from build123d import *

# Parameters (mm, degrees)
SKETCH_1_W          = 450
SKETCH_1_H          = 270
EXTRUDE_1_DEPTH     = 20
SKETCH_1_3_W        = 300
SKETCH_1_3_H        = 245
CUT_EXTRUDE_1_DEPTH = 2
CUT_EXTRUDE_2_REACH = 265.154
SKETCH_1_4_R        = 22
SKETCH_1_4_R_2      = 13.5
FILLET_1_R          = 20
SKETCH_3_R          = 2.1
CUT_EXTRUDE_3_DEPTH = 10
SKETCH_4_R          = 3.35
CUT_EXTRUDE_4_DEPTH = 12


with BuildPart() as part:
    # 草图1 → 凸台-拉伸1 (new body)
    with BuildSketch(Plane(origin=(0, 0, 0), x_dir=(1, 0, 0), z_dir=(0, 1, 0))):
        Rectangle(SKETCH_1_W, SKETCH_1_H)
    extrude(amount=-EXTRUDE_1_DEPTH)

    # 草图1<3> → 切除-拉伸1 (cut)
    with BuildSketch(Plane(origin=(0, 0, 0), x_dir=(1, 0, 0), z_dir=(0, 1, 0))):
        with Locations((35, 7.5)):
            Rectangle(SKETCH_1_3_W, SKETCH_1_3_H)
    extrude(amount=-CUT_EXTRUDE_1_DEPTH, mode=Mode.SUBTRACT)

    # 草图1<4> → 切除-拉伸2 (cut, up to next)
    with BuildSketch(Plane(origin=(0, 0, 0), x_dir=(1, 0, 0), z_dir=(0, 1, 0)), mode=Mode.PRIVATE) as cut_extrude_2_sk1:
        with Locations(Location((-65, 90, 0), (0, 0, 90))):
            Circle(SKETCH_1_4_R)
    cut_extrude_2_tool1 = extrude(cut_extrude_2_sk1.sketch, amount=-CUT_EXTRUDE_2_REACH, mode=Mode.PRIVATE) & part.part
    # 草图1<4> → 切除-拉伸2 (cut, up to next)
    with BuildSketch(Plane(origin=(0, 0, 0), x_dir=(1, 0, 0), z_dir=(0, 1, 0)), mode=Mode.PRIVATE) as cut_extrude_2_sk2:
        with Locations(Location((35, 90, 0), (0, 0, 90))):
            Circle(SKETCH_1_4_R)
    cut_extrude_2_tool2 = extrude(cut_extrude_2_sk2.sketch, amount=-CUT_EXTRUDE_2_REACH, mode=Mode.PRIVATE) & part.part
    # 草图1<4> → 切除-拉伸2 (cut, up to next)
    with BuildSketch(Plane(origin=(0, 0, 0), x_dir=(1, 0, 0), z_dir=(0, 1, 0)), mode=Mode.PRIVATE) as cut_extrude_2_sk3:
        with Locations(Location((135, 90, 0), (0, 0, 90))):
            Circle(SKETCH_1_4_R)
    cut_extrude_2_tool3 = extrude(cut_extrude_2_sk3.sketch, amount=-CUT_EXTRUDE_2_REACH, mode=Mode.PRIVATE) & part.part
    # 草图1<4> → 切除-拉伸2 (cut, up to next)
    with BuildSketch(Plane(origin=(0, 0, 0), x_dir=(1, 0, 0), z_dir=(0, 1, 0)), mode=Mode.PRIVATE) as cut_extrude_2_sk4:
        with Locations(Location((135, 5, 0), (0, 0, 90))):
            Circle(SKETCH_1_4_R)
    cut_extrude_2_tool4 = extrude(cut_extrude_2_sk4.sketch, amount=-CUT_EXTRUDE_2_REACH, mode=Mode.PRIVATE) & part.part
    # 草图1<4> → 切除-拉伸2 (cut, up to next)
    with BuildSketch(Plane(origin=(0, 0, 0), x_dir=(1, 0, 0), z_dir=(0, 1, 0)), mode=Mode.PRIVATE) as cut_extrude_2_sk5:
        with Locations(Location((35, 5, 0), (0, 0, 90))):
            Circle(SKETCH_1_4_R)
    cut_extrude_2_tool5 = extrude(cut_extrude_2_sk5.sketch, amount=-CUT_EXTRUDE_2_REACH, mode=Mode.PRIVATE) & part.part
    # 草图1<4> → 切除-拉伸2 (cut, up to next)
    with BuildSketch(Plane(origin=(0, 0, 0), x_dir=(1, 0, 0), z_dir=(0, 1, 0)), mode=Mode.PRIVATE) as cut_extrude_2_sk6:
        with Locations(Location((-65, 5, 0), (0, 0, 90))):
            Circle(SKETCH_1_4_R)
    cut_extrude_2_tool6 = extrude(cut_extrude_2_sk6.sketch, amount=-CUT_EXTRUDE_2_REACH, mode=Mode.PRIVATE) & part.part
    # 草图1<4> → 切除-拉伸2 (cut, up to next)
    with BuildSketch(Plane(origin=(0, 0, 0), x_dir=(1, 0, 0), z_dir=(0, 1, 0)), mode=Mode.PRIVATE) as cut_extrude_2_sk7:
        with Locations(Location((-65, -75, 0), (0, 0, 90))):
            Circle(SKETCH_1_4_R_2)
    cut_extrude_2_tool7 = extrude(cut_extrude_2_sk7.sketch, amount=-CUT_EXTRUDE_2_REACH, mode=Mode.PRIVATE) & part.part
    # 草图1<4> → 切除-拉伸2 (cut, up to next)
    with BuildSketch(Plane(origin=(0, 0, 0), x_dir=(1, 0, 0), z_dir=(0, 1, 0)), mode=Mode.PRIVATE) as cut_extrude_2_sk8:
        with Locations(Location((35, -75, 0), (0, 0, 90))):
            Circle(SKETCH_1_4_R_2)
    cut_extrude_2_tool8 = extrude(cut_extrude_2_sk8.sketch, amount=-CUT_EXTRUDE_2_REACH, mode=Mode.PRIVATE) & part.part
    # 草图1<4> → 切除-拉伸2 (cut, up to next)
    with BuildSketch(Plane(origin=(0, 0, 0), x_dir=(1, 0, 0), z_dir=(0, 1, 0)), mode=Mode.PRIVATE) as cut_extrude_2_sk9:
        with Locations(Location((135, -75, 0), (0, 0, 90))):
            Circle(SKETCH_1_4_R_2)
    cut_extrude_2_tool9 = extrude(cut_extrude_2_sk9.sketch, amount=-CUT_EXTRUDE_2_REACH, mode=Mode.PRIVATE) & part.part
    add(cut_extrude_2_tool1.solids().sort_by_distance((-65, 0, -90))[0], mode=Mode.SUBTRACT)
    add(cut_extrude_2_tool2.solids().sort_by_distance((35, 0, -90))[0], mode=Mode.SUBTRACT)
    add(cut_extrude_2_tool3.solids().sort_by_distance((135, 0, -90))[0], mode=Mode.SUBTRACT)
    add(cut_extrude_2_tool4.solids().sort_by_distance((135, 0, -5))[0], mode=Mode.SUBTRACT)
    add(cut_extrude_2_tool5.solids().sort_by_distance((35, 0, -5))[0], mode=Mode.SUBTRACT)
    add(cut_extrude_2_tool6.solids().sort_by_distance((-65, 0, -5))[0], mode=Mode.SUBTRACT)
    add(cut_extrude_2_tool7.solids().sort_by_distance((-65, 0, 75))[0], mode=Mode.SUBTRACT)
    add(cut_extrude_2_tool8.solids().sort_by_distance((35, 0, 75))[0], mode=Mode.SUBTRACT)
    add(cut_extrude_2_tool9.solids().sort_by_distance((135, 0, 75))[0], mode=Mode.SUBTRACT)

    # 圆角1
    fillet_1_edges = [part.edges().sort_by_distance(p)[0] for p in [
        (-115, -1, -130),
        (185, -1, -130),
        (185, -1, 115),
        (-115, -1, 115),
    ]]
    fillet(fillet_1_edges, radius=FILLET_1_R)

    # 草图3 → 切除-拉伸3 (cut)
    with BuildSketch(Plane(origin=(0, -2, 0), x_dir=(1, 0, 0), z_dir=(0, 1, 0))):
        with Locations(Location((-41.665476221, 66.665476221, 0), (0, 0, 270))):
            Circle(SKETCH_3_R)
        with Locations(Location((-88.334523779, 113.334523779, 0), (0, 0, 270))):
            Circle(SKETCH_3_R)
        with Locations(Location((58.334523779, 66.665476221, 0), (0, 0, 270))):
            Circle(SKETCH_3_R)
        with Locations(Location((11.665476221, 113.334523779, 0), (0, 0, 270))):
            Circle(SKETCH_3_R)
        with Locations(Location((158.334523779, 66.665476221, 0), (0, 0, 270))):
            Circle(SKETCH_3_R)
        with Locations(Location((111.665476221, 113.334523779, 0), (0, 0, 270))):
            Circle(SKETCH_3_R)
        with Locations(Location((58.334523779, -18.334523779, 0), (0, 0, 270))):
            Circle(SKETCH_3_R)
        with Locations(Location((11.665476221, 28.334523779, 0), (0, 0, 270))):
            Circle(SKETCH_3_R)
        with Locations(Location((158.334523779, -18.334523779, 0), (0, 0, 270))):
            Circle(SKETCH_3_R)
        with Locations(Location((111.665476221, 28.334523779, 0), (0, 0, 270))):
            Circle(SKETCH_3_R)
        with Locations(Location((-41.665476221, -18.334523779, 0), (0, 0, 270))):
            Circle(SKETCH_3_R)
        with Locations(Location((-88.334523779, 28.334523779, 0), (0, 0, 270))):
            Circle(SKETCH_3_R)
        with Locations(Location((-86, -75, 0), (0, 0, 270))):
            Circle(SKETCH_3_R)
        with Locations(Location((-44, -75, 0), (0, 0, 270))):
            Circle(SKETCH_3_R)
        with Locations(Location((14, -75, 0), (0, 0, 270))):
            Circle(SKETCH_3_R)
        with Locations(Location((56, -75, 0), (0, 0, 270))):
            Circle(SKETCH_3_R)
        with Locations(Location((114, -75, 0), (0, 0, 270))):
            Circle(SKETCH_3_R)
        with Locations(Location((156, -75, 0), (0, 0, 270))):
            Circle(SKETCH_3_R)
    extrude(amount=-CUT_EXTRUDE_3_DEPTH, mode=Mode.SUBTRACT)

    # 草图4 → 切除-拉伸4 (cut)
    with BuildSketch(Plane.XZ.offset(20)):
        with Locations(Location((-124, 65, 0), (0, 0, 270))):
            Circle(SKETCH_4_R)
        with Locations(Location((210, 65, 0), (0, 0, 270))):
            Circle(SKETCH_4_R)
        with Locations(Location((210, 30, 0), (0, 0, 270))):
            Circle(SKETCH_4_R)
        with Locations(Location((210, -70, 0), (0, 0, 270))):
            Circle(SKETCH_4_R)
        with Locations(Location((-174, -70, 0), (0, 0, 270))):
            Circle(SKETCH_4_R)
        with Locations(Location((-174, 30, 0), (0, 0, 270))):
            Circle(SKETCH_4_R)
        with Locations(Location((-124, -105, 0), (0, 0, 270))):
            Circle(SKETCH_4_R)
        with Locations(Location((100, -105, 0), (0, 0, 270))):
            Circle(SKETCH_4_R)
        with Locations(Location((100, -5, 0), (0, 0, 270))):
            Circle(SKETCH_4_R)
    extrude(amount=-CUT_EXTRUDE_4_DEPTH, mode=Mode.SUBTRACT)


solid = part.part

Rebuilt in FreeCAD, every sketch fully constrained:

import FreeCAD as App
import Part
import Sketcher


def edges_at(feature, points):
    """Names of the edges that pass closest to the given points."""
    edges = feature.Shape.Edges
    near = lambda p: min(range(len(edges)), key=lambda i: edges[i].distToShape(Part.Vertex(*p))[0])
    return sorted({f"Edge{near(p) + 1}" for p in points})


def add_polygon(sketch, points):
    """Adds a closed chain of lines whose ends are joined by coincident constraints."""
    first, n = sketch.GeometryCount, len(points)
    for a, b in zip(points, points[1:] + points[:1]):
        sketch.addGeometry(Part.LineSegment(App.Vector(*a, 0), App.Vector(*b, 0)), False)
    for i in range(n):
        sketch.addConstraint(Sketcher.Constraint("Coincident", first + i, 2, first + (i + 1) % n, 1))

doc = App.newDocument("Part")
body = doc.addObject("PartDesign::Body", "Body")

sketch1 = body.newObject("Sketcher::SketchObject", "Sketch")
sketch1.AttachmentSupport = (doc.getObject("XZ_Plane"), [""])
sketch1.MapMode = "FlatFace"
add_polygon(sketch1, [(-225, -135), (-225, 135), (225, 135), (225, -135)])
sketch1.addConstraint([
    Sketcher.Constraint("Vertical", 0),
    Sketcher.Constraint("Horizontal", 1),
    Sketcher.Constraint("Vertical", 2),
    Sketcher.Constraint("Horizontal", 3),
    Sketcher.Constraint("Symmetric", 0, 2, 2, 2, -1, 1),
    Sketcher.Constraint("DistanceX", 1, 1, 1, 2, 450.0),
    Sketcher.Constraint("DistanceY", 0, 1, 0, 2, 270.0),
])
pad1 = body.newObject("PartDesign::Pad", "Pad")
pad1.Profile = sketch1
pad1.Length = 20

sketch2 = body.newObject("Sketcher::SketchObject", "Sketch001")
sketch2.AttachmentSupport = (doc.getObject("XZ_Plane"), [""])
sketch2.MapMode = "FlatFace"
add_polygon(sketch2, [(-115, -130), (-115, 115), (185, 115), (185, -130)])
sketch2.addConstraint([
    Sketcher.Constraint("Vertical", 0),
    Sketcher.Constraint("Horizontal", 1),
    Sketcher.Constraint("Vertical", 2),
    Sketcher.Constraint("Horizontal", 3),
    Sketcher.Constraint("DistanceX", 1, 1, 1, 2, 300.0),
    Sketcher.Constraint("DistanceY", 0, 1, 0, 2, 245.0),
    Sketcher.Constraint("DistanceX", 0, 2, -1, 1, 115.0),
    Sketcher.Constraint("DistanceY", -1, 1, 0, 2, 115.0),
])
pocket1 = body.newObject("PartDesign::Pocket", "Pocket")
pocket1.Profile = sketch2
pocket1.Length = 2
pocket1.Reversed = True

sketch3 = body.newObject("Sketcher::SketchObject", "Sketch002")
sketch3.AttachmentSupport = (doc.getObject("XZ_Plane"), [""])
sketch3.MapMode = "FlatFace"
sketch3.addGeometry(Part.Circle(App.Vector(-65, -90, 0), App.Vector(0, 0, 1), 22), False)
sketch3.addConstraint([
    Sketcher.Constraint("Diameter", 0, 44.0),
    Sketcher.Constraint("DistanceX", 0, 3, -1, 1, 65.0),
    Sketcher.Constraint("DistanceY", 0, 3, -1, 1, 90.0),
])
pocket2 = body.newObject("PartDesign::Pocket", "Pocket001")
pocket2.Profile = sketch3
pocket2.Length = 20
pocket2.Reversed = True

sketch4 = body.newObject("Sketcher::SketchObject", "Sketch003")
sketch4.AttachmentSupport = (doc.getObject("XZ_Plane"), [""])
sketch4.MapMode = "FlatFace"
sketch4.addGeometry(Part.Circle(App.Vector(35, -90, 0), App.Vector(0, 0, 1), 22), False)
sketch4.addConstraint([
    Sketcher.Constraint("Diameter", 0, 44.0),
    Sketcher.Constraint("DistanceX", -1, 1, 0, 3, 35.0),
    Sketcher.Constraint("DistanceY", 0, 3, -1, 1, 90.0),
])
pocket3 = body.newObject("PartDesign::Pocket", "Pocket002")
pocket3.Profile = sketch4
pocket3.Length = 20
pocket3.Reversed = True

sketch5 = body.newObject("Sketcher::SketchObject", "Sketch004")
sketch5.AttachmentSupport = (doc.getObject("XZ_Plane"), [""])
sketch5.MapMode = "FlatFace"
sketch5.addGeometry(Part.Circle(App.Vector(135, -90, 0), App.Vector(0, 0, 1), 22), False)
sketch5.addConstraint([
    Sketcher.Constraint("Diameter", 0, 44.0),
    Sketcher.Constraint("DistanceX", -1, 1, 0, 3, 135.0),
    Sketcher.Constraint("DistanceY", 0, 3, -1, 1, 90.0),
])
pocket4 = body.newObject("PartDesign::Pocket", "Pocket003")
pocket4.Profile = sketch5
pocket4.Length = 20
pocket4.Reversed = True

sketch6 = body.newObject("Sketcher::SketchObject", "Sketch005")
sketch6.AttachmentSupport = (doc.getObject("XZ_Plane"), [""])
sketch6.MapMode = "FlatFace"
sketch6.addGeometry(Part.Circle(App.Vector(135, -5, 0), App.Vector(0, 0, 1), 22), False)
sketch6.addConstraint([
    Sketcher.Constraint("Diameter", 0, 44.0),
    Sketcher.Constraint("DistanceX", -1, 1, 0, 3, 135.0),
    Sketcher.Constraint("DistanceY", 0, 3, -1, 1, 5.0),
])
pocket5 = body.newObject("PartDesign::Pocket", "Pocket004")
pocket5.Profile = sketch6
pocket5.Length = 20
pocket5.Reversed = True

sketch7 = body.newObject("Sketcher::SketchObject", "Sketch006")
sketch7.AttachmentSupport = (doc.getObject("XZ_Plane"), [""])
sketch7.MapMode = "FlatFace"
sketch7.addGeometry(Part.Circle(App.Vector(35, -5, 0), App.Vector(0, 0, 1), 22), False)
sketch7.addConstraint([
    Sketcher.Constraint("Diameter", 0, 44.0),
    Sketcher.Constraint("DistanceX", -1, 1, 0, 3, 35.0),
    Sketcher.Constraint("DistanceY", 0, 3, -1, 1, 5.0),
])
pocket6 = body.newObject("PartDesign::Pocket", "Pocket005")
pocket6.Profile = sketch7
pocket6.Length = 20
pocket6.Reversed = True

sketch8 = body.newObject("Sketcher::SketchObject", "Sketch007")
sketch8.AttachmentSupport = (doc.getObject("XZ_Plane"), [""])
sketch8.MapMode = "FlatFace"
sketch8.addGeometry(Part.Circle(App.Vector(-65, -5, 0), App.Vector(0, 0, 1), 22), False)
sketch8.addConstraint([
    Sketcher.Constraint("Diameter", 0, 44.0),
    Sketcher.Constraint("DistanceX", 0, 3, -1, 1, 65.0),
    Sketcher.Constraint("DistanceY", 0, 3, -1, 1, 5.0),
])
pocket7 = body.newObject("PartDesign::Pocket", "Pocket006")
pocket7.Profile = sketch8
pocket7.Length = 20
pocket7.Reversed = True

sketch9 = body.newObject("Sketcher::SketchObject", "Sketch008")
sketch9.AttachmentSupport = (doc.getObject("XZ_Plane"), [""])
sketch9.MapMode = "FlatFace"
sketch9.addGeometry(Part.Circle(App.Vector(-65, 75, 0), App.Vector(0, 0, 1), 14), False)
sketch9.addConstraint([
    Sketcher.Constraint("Diameter", 0, 27.0),
    Sketcher.Constraint("DistanceX", 0, 3, -1, 1, 65.0),
    Sketcher.Constraint("DistanceY", -1, 1, 0, 3, 75.0),
])
pocket8 = body.newObject("PartDesign::Pocket", "Pocket007")
pocket8.Profile = sketch9
pocket8.Length = 20
pocket8.Reversed = True

sketch10 = body.newObject("Sketcher::SketchObject", "Sketch009")
sketch10.AttachmentSupport = (doc.getObject("XZ_Plane"), [""])
sketch10.MapMode = "FlatFace"
sketch10.addGeometry(Part.Circle(App.Vector(35, 75, 0), App.Vector(0, 0, 1), 14), False)
sketch10.addConstraint([
    Sketcher.Constraint("Diameter", 0, 27.0),
    Sketcher.Constraint("DistanceX", -1, 1, 0, 3, 35.0),
    Sketcher.Constraint("DistanceY", -1, 1, 0, 3, 75.0),
])
pocket9 = body.newObject("PartDesign::Pocket", "Pocket008")
pocket9.Profile = sketch10
pocket9.Length = 20
pocket9.Reversed = True

sketch11 = body.newObject("Sketcher::SketchObject", "Sketch010")
sketch11.AttachmentSupport = (doc.getObject("XZ_Plane"), [""])
sketch11.MapMode = "FlatFace"
sketch11.addGeometry(Part.Circle(App.Vector(135, 75, 0), App.Vector(0, 0, 1), 14), False)
sketch11.addConstraint([
    Sketcher.Constraint("Diameter", 0, 27.0),
    Sketcher.Constraint("DistanceX", -1, 1, 0, 3, 135.0),
    Sketcher.Constraint("DistanceY", -1, 1, 0, 3, 75.0),
])
pocket10 = body.newObject("PartDesign::Pocket", "Pocket009")
pocket10.Profile = sketch11
pocket10.Length = 20
pocket10.Reversed = True
doc.recompute()

fillet = body.newObject("PartDesign::Fillet", "Fillet")
fillet.Base = (pocket10, edges_at(pocket10, [
    (-115, -1, -130),
    (185, -1, -130),
    (185, -1, 115),
    (-115, -1, 115),
]))
fillet.Radius = 20

sketch12 = body.newObject("Sketcher::SketchObject", "Sketch011")
sketch12.AttachmentSupport = (doc.getObject("XZ_Plane"), [""])
sketch12.MapMode = "FlatFace"
sketch12.AttachmentOffset = App.Placement(App.Vector(0, 0, 2), App.Rotation())
sketch12.addGeometry([
    Part.Circle(App.Vector(-41.7, -66.7, 0), App.Vector(0, 0, 1), 2.1),
    Part.Circle(App.Vector(-88.3, -113.3, 0), App.Vector(0, 0, 1), 2.1),
    Part.Circle(App.Vector(58.3, -66.7, 0), App.Vector(0, 0, 1), 2.1),
    Part.Circle(App.Vector(11.7, -113.3, 0), App.Vector(0, 0, 1), 2.1),
    Part.Circle(App.Vector(158.3, -66.7, 0), App.Vector(0, 0, 1), 2.1),
    Part.Circle(App.Vector(111.7, -113.3, 0), App.Vector(0, 0, 1), 2.1),
    Part.Circle(App.Vector(58.3, 18.3, 0), App.Vector(0, 0, 1), 2.1),
    Part.Circle(App.Vector(11.7, -28.3, 0), App.Vector(0, 0, 1), 2.1),
    Part.Circle(App.Vector(158.3, 18.3, 0), App.Vector(0, 0, 1), 2.1),
    Part.Circle(App.Vector(111.7, -28.3, 0), App.Vector(0, 0, 1), 2.1),
    Part.Circle(App.Vector(-41.7, 18.3, 0), App.Vector(0, 0, 1), 2.1),
    Part.Circle(App.Vector(-88.3, -28.3, 0), App.Vector(0, 0, 1), 2.1),
    Part.Circle(App.Vector(-86, 75, 0), App.Vector(0, 0, 1), 2.1),
    Part.Circle(App.Vector(-44, 75, 0), App.Vector(0, 0, 1), 2.1),
    Part.Circle(App.Vector(14, 75, 0), App.Vector(0, 0, 1), 2.1),
    Part.Circle(App.Vector(56, 75, 0), App.Vector(0, 0, 1), 2.1),
    Part.Circle(App.Vector(114, 75, 0), App.Vector(0, 0, 1), 2.1),
    Part.Circle(App.Vector(156, 75, 0), App.Vector(0, 0, 1), 2.1),
], False)
sketch12.addConstraint([
    Sketcher.Constraint("Equal", 0, 1),
    Sketcher.Constraint("Equal", 1, 2),
    Sketcher.Constraint("Equal", 2, 3),
    Sketcher.Constraint("Equal", 3, 4),
    Sketcher.Constraint("Equal", 4, 5),
    Sketcher.Constraint("Equal", 5, 6),
    Sketcher.Constraint("Equal", 6, 7),
    Sketcher.Constraint("Equal", 7, 8),
    Sketcher.Constraint("Equal", 8, 9),
    Sketcher.Constraint("Equal", 9, 10),
    Sketcher.Constraint("Equal", 10, 11),
    Sketcher.Constraint("Equal", 11, 12),
    Sketcher.Constraint("Equal", 12, 13),
    Sketcher.Constraint("Equal", 13, 14),
    Sketcher.Constraint("Equal", 14, 15),
    Sketcher.Constraint("Equal", 15, 16),
    Sketcher.Constraint("Equal", 16, 17),
    Sketcher.Constraint("Horizontal", 0, 3, 2, 3),
    Sketcher.Constraint("Horizontal", 1, 3, 3, 3),
    Sketcher.Constraint("Horizontal", 2, 3, 4, 3),
    Sketcher.Constraint("Horizontal", 3, 3, 5, 3),
    Sketcher.Constraint("Horizontal", 6, 3, 8, 3),
    Sketcher.Constraint("Horizontal", 7, 3, 9, 3),
    Sketcher.Constraint("Horizontal", 8, 3, 10, 3),
    Sketcher.Constraint("Horizontal", 9, 3, 11, 3),
    Sketcher.Constraint("Horizontal", 12, 3, 13, 3),
    Sketcher.Constraint("Horizontal", 13, 3, 14, 3),
    Sketcher.Constraint("Horizontal", 14, 3, 15, 3),
    Sketcher.Constraint("Horizontal", 15, 3, 16, 3),
    Sketcher.Constraint("Horizontal", 16, 3, 17, 3),
    Sketcher.Constraint("Vertical", 2, 3, 6, 3),
    Sketcher.Constraint("Vertical", 3, 3, 7, 3),
    Sketcher.Constraint("Vertical", 4, 3, 8, 3),
    Sketcher.Constraint("Vertical", 5, 3, 9, 3),
    Sketcher.Constraint("Vertical", 0, 3, 10, 3),
    Sketcher.Constraint("Vertical", 1, 3, 11, 3),
    Sketcher.Constraint("Diameter", 0, 4.2),
    Sketcher.Constraint("DistanceX", 12, 3, -1, 1, 86.0),
    Sketcher.Constraint("DistanceY", -1, 1, 12, 3, 75.0),
    Sketcher.Constraint("DistanceX", 13, 3, -1, 1, 44.0),
    Sketcher.Constraint("DistanceX", -1, 1, 14, 3, 14.0),
    Sketcher.Constraint("DistanceX", -1, 1, 15, 3, 56.0),
    Sketcher.Constraint("DistanceX", -1, 1, 16, 3, 114.0),
    Sketcher.Constraint("DistanceX", -1, 1, 17, 3, 156.0),
    Sketcher.Constraint("DistanceX", 0, 3, 2, 3, 100.0),
    Sketcher.Constraint("DistanceX", 1, 3, 3, 3, 100.0),
    Sketcher.Constraint("DistanceX", 2, 3, 4, 3, 100.0),
    Sketcher.Constraint("DistanceX", 3, 3, 5, 3, 100.0),
    Sketcher.Constraint("DistanceY", 2, 3, 6, 3, 85.0),
    Sketcher.Constraint("DistanceY", 3, 3, 7, 3, 85.0),
    Sketcher.Constraint("DistanceX", 0, 3, -1, 1, 41.665476),
    Sketcher.Constraint("DistanceY", 0, 3, -1, 1, 66.665476),
    Sketcher.Constraint("DistanceX", 1, 3, -1, 1, 88.334524),
    Sketcher.Constraint("DistanceY", 1, 3, -1, 1, 113.334524),
])
pocket11 = body.newObject("PartDesign::Pocket", "Pocket010")
pocket11.Profile = sketch12
pocket11.Length = 10
pocket11.Reversed = True

sketch13 = body.newObject("Sketcher::SketchObject", "Sketch012")
sketch13.AttachmentSupport = (doc.getObject("XZ_Plane"), [""])
sketch13.MapMode = "FlatFace"
sketch13.AttachmentOffset = App.Placement(App.Vector(0, 0, 20), App.Rotation())
sketch13.addGeometry([
    Part.Circle(App.Vector(-124, 65, 0), App.Vector(0, 0, 1), 3.4),
    Part.Circle(App.Vector(210, 65, 0), App.Vector(0, 0, 1), 3.4),
    Part.Circle(App.Vector(210, 30, 0), App.Vector(0, 0, 1), 3.4),
    Part.Circle(App.Vector(210, -70, 0), App.Vector(0, 0, 1), 3.4),
    Part.Circle(App.Vector(-174, -70, 0), App.Vector(0, 0, 1), 3.4),
    Part.Circle(App.Vector(-174, 30, 0), App.Vector(0, 0, 1), 3.4),
    Part.Circle(App.Vector(-124, -105, 0), App.Vector(0, 0, 1), 3.4),
    Part.Circle(App.Vector(100, -105, 0), App.Vector(0, 0, 1), 3.4),
    Part.Circle(App.Vector(100, -5, 0), App.Vector(0, 0, 1), 3.4),
], False)
sketch13.addConstraint([
    Sketcher.Constraint("Equal", 0, 1),
    Sketcher.Constraint("Equal", 1, 2),
    Sketcher.Constraint("Equal", 2, 3),
    Sketcher.Constraint("Equal", 3, 4),
    Sketcher.Constraint("Equal", 4, 5),
    Sketcher.Constraint("Equal", 5, 6),
    Sketcher.Constraint("Equal", 6, 7),
    Sketcher.Constraint("Equal", 7, 8),
    Sketcher.Constraint("Horizontal", 0, 3, 1, 3),
    Sketcher.Constraint("Horizontal", 3, 3, 4, 3),
    Sketcher.Constraint("Horizontal", 2, 3, 5, 3),
    Sketcher.Constraint("Horizontal", 6, 3, 7, 3),
    Sketcher.Constraint("Vertical", 1, 3, 2, 3),
    Sketcher.Constraint("Vertical", 2, 3, 3, 3),
    Sketcher.Constraint("Vertical", 4, 3, 5, 3),
    Sketcher.Constraint("Vertical", 0, 3, 6, 3),
    Sketcher.Constraint("Vertical", 7, 3, 8, 3),
    Sketcher.Constraint("Diameter", 0, 6.7),
    Sketcher.Constraint("DistanceX", 0, 3, -1, 1, 124.0),
    Sketcher.Constraint("DistanceY", -1, 1, 0, 3, 65.0),
    Sketcher.Constraint("DistanceX", -1, 1, 1, 3, 210.0),
    Sketcher.Constraint("DistanceY", -1, 1, 2, 3, 30.0),
    Sketcher.Constraint("DistanceY", 3, 3, -1, 1, 70.0),
    Sketcher.Constraint("DistanceX", 4, 3, -1, 1, 174.0),
    Sketcher.Constraint("DistanceY", 6, 3, -1, 1, 105.0),
    Sketcher.Constraint("DistanceX", -1, 1, 7, 3, 100.0),
    Sketcher.Constraint("DistanceY", 8, 3, -1, 1, 5.0),
])
pocket12 = body.newObject("PartDesign::Pocket", "Pocket011")
pocket12.Profile = sketch13
pocket12.Length = 12

doc.recompute()
